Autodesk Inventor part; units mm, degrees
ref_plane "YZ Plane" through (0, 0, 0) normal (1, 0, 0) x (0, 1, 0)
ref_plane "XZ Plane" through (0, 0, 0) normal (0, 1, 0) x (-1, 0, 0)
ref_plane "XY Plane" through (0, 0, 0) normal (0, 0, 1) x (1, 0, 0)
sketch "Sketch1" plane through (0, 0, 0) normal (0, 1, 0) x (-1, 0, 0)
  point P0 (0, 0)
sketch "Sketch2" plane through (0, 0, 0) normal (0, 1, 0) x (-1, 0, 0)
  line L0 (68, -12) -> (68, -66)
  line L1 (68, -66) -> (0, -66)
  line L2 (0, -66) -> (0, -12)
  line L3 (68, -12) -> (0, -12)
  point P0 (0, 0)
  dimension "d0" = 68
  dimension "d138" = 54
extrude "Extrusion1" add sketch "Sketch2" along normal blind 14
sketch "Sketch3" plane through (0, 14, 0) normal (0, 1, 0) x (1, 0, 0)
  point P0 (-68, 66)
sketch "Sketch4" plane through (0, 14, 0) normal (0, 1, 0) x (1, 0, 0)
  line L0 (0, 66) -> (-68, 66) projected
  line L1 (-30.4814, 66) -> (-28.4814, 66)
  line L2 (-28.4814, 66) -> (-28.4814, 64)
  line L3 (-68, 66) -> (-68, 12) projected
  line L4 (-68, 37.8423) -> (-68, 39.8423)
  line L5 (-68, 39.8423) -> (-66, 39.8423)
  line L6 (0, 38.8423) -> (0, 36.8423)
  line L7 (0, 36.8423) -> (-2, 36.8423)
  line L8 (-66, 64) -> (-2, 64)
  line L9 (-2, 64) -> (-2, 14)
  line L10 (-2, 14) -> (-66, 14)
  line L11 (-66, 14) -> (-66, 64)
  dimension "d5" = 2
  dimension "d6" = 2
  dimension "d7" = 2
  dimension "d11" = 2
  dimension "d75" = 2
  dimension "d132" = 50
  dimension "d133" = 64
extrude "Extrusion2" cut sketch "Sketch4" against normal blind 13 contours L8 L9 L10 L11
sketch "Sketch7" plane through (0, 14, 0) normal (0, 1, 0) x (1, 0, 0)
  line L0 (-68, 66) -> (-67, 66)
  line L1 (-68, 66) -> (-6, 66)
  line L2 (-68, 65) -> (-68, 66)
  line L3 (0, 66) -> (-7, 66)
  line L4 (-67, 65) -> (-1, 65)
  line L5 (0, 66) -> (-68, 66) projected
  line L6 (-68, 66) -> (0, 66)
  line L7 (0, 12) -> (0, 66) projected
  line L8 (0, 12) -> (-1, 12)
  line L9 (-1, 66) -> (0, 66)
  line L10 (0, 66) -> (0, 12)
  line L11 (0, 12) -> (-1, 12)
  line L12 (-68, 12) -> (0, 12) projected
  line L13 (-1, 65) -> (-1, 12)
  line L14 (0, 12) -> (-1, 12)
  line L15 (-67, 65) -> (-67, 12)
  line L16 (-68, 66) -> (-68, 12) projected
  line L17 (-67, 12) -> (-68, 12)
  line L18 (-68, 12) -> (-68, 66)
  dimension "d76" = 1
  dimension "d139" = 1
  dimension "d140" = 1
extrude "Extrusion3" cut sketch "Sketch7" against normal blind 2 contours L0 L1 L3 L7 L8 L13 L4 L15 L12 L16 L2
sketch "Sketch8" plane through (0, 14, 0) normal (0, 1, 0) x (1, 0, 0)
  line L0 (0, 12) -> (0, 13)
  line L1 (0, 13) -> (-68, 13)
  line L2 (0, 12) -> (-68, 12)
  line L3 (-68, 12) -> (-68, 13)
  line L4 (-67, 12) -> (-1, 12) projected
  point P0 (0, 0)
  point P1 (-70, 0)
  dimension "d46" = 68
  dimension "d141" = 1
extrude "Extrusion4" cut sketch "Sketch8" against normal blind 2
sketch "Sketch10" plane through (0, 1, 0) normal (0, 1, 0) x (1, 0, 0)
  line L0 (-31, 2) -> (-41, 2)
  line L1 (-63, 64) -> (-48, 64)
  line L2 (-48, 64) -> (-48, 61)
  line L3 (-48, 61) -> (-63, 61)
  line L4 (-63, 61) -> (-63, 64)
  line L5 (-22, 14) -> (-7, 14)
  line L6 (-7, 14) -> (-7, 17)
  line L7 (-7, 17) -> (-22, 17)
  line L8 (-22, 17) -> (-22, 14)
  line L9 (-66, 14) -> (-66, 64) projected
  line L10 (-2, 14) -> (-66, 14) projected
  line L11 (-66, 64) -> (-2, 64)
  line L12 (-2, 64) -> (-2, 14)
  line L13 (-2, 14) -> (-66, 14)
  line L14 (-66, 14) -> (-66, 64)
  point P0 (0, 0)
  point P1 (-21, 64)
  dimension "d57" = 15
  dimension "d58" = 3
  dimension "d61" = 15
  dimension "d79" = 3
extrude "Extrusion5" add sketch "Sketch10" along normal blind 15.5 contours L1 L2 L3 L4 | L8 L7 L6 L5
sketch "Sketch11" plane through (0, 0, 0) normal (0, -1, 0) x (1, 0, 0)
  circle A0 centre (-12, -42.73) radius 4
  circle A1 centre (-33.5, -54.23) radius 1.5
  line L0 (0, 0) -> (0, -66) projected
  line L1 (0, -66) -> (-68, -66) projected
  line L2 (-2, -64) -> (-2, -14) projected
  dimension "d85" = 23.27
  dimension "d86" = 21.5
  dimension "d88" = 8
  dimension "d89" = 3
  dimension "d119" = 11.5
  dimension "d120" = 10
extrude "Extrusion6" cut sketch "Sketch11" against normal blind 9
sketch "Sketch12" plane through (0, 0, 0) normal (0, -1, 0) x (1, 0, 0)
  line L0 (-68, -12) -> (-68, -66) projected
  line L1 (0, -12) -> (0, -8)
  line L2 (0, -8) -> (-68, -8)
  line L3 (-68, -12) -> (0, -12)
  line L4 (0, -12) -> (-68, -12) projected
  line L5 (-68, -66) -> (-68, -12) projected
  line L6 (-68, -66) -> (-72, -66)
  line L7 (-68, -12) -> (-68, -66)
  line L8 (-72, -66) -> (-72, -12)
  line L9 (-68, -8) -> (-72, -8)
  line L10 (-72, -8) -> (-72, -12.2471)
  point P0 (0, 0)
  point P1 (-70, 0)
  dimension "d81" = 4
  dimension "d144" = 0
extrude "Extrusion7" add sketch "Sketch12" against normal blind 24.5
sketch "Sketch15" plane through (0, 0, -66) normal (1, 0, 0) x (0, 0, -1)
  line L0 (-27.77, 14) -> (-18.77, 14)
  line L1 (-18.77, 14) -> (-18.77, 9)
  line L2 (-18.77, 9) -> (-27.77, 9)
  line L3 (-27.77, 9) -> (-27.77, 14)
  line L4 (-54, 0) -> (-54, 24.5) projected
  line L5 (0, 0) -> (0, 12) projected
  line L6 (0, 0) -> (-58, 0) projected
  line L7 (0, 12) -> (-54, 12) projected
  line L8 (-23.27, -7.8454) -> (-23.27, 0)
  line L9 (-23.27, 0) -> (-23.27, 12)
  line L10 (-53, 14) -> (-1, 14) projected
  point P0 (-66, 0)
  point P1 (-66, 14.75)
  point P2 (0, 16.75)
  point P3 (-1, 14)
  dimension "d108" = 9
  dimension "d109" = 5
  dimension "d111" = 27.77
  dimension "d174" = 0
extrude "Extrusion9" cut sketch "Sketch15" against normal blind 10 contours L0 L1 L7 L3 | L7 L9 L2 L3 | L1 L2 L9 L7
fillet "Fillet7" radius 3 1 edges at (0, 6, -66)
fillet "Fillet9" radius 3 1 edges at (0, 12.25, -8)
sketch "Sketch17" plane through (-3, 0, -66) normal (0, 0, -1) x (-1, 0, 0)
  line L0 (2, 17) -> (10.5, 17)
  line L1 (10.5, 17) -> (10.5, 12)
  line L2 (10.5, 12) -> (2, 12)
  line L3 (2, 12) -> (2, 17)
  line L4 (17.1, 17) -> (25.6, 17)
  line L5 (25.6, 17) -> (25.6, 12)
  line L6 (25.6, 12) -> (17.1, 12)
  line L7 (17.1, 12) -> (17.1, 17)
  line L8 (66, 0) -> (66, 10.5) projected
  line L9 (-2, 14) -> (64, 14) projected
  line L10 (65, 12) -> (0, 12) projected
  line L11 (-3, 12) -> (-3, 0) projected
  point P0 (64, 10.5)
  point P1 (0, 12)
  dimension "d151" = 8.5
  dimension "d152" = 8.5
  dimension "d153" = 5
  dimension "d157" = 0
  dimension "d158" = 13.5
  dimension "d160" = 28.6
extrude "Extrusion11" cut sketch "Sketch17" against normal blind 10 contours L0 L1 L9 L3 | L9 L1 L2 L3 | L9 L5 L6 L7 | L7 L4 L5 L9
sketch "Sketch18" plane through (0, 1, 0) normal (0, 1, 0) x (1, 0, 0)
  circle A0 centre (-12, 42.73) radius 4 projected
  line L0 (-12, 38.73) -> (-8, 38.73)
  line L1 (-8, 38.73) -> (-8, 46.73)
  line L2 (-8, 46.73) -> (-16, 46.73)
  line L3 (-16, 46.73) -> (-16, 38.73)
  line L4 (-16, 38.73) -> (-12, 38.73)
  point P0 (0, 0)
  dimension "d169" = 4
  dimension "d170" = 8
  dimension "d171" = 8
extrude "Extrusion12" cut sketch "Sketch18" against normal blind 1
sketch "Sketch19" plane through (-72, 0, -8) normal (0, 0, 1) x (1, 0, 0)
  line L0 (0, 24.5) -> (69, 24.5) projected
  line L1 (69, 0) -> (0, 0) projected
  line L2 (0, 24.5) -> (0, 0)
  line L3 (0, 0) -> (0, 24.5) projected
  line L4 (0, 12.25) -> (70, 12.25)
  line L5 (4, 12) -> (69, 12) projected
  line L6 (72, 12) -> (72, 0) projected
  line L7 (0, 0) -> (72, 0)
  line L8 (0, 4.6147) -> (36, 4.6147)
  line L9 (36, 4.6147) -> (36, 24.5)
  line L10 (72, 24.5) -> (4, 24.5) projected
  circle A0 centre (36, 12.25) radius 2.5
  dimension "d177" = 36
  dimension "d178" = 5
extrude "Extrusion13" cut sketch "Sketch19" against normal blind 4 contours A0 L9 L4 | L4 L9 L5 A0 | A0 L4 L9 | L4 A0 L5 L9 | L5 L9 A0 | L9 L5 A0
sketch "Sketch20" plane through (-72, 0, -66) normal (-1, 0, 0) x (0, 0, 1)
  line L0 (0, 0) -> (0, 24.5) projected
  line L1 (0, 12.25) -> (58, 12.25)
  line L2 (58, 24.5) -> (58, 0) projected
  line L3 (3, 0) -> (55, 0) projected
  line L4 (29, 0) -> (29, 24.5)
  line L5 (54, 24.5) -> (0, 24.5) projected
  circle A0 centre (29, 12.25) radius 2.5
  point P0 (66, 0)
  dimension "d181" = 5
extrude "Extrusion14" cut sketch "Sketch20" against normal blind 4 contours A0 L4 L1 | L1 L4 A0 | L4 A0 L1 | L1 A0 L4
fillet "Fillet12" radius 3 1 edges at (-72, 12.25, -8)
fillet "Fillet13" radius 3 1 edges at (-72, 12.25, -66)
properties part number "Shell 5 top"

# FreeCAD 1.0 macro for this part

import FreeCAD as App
import Part
import Sketcher


def edges_at(feature, points):
    """Names of the edges that pass closest to the given points."""
    edges = feature.Shape.Edges
    near = lambda p: min(range(len(edges)), key=lambda i: edges[i].distToShape(Part.Vertex(*p))[0])
    return sorted({f"Edge{near(p) + 1}" for p in points})


def add_polygon(sketch, points):
    """Adds a closed chain of lines whose ends are joined by coincident constraints."""
    first, n = sketch.GeometryCount, len(points)
    for a, b in zip(points, points[1:] + points[:1]):
        sketch.addGeometry(Part.LineSegment(App.Vector(*a, 0), App.Vector(*b, 0)), False)
    for i in range(n):
        sketch.addConstraint(Sketcher.Constraint("Coincident", first + i, 2, first + (i + 1) % n, 1))

doc = App.newDocument("Part")
body = doc.addObject("PartDesign::Body", "Body")

# Sketch on XZ plane
sketch1 = body.newObject("Sketcher::SketchObject", "Sketch")
sketch1.AttachmentSupport = (doc.getObject("XZ_Plane"), [""])
sketch1.MapMode = "FlatFace"
add_polygon(sketch1, [(-68, -66), (-68, -12), (0, -12), (0, -66)])  # lines 0-3
sketch1.addConstraint([
    Sketcher.Constraint("Vertical", 0),
    Sketcher.Constraint("Horizontal", 1),
    Sketcher.Constraint("Vertical", 2),
    Sketcher.Constraint("Horizontal", 3),
    Sketcher.Constraint("PointOnObject", 1, 2, -2),
    Sketcher.Constraint("DistanceX", 1, 1, 1, 2, 68.0),
    Sketcher.Constraint("DistanceY", 0, 1, 0, 2, 54.0),
    Sketcher.Constraint("DistanceY", 0, 2, -1, 1, 12.0),
])
pad1 = body.newObject("PartDesign::Pad", "Pad")
pad1.Profile = sketch1
pad1.Length = 14
pad1.Reversed = True

# Sketch on XZ plane
sketch2 = body.newObject("Sketcher::SketchObject", "Sketch001")
sketch2.AttachmentSupport = (doc.getObject("XZ_Plane"), [""])
sketch2.MapMode = "FlatFace"
sketch2.AttachmentOffset = App.Placement(App.Vector(0, 0, -14), App.Rotation())
add_polygon(sketch2, [(-2, -64), (-66, -64), (-66, -14), (-2, -14)])  # lines 0-3
sketch2.addConstraint([
    Sketcher.Constraint("Horizontal", 0),
    Sketcher.Constraint("Vertical", 1),
    Sketcher.Constraint("Horizontal", 2),
    Sketcher.Constraint("Vertical", 3),
    Sketcher.Constraint("DistanceX", 0, 2, 0, 1, 64.0),
    Sketcher.Constraint("DistanceY", 1, 1, 1, 2, 50.0),
    Sketcher.Constraint("DistanceY", 0, 2, -1, 1, 64.0),
    Sketcher.Constraint("DistanceX", 2, 2, -1, 1, 2.0),
])
pocket1 = body.newObject("PartDesign::Pocket", "Pocket")
pocket1.Profile = sketch2
pocket1.Length = 13
pocket1.Reversed = True

# Sketch on XZ plane
sketch3 = body.newObject("Sketcher::SketchObject", "Sketch002")
sketch3.AttachmentSupport = (doc.getObject("XZ_Plane"), [""])
sketch3.MapMode = "FlatFace"
sketch3.AttachmentOffset = App.Placement(App.Vector(0, 0, -14), App.Rotation())
add_polygon(sketch3, [(0, -66), (-68, -66), (-68, -12), (-67, -12), (-67, -65), (-1, -65), (-1, -12), (0, -12)])  # lines 0-7
sketch3.addConstraint([
    Sketcher.Constraint("Horizontal", 0),
    Sketcher.Constraint("Vertical", 1),
    Sketcher.Constraint("Horizontal", 2),
    Sketcher.Constraint("Vertical", 3),
    Sketcher.Constraint("Horizontal", 4),
    Sketcher.Constraint("Vertical", 5),
    Sketcher.Constraint("Horizontal", 6),
    Sketcher.Constraint("Vertical", 7),
    Sketcher.Constraint("PointOnObject", 6, 2, -2),
    Sketcher.Constraint("Horizontal", 2, 2, 5, 2),
    Sketcher.Constraint("Equal", 2, 6),
    Sketcher.Constraint("DistanceX", 2, 1, 2, 2, 1.0),
    Sketcher.Constraint("DistanceY", 0, 2, 3, 2, 1.0),
    Sketcher.Constraint("DistanceX", 0, 2, 0, 1, 68.0),
    Sketcher.Constraint("DistanceY", 1, 1, 1, 2, 54.0),
    Sketcher.Constraint("DistanceY", 0, 2, -1, 1, 66.0),
])
pocket2 = body.newObject("PartDesign::Pocket", "Pocket001")
pocket2.Profile = sketch3
pocket2.Length = 2
pocket2.Reversed = True

# Sketch on XZ plane
sketch4 = body.newObject("Sketcher::SketchObject", "Sketch003")
sketch4.AttachmentSupport = (doc.getObject("XZ_Plane"), [""])
sketch4.MapMode = "FlatFace"
sketch4.AttachmentOffset = App.Placement(App.Vector(0, 0, -14), App.Rotation())
add_polygon(sketch4, [(-68, -12), (0, -12), (0, -13), (-68, -13)])  # lines 0-3
sketch4.addConstraint([
    Sketcher.Constraint("Horizontal", 0),
    Sketcher.Constraint("Vertical", 1),
    Sketcher.Constraint("Horizontal", 2),
    Sketcher.Constraint("Vertical", 3),
    Sketcher.Constraint("PointOnObject", 0, 2, -2),
    Sketcher.Constraint("DistanceX", 0, 1, 0, 2, 68.0),
    Sketcher.Constraint("DistanceY", 1, 2, 1, 1, 1.0),
    Sketcher.Constraint("DistanceY", 0, 2, -1, 1, 12.0),
])
pocket3 = body.newObject("PartDesign::Pocket", "Pocket002")
pocket3.Profile = sketch4
pocket3.Length = 2
pocket3.Reversed = True

# Sketch on XZ plane
sketch5 = body.newObject("Sketcher::SketchObject", "Sketch004")
sketch5.AttachmentSupport = (doc.getObject("XZ_Plane"), [""])
sketch5.MapMode = "FlatFace"
sketch5.AttachmentOffset = App.Placement(App.Vector(0, 0, -1), App.Rotation())
add_polygon(sketch5, [(-48, -64), (-63, -64), (-63, -61), (-48, -61)])  # lines 0-3
add_polygon(sketch5, [(-22, -17), (-22, -14), (-7, -14), (-7, -17)])  # lines 4-7
sketch5.addConstraint([
    Sketcher.Constraint("Horizontal", 0),
    Sketcher.Constraint("Vertical", 1),
    Sketcher.Constraint("Horizontal", 2),
    Sketcher.Constraint("Vertical", 3),
    Sketcher.Constraint("Vertical", 4),
    Sketcher.Constraint("Horizontal", 5),
    Sketcher.Constraint("Vertical", 6),
    Sketcher.Constraint("Horizontal", 7),
    Sketcher.Constraint("Equal", 2, 5),
    Sketcher.Constraint("Equal", 3, 4),
    Sketcher.Constraint("DistanceX", 0, 2, 0, 1, 15.0),
    Sketcher.Constraint("DistanceY", 1, 1, 1, 2, 3.0),
    Sketcher.Constraint("DistanceX", 0, 2, -1, 1, 63.0),
    Sketcher.Constraint("DistanceY", 0, 2, -1, 1, 64.0),
    Sketcher.Constraint("DistanceX", 4, 2, -1, 1, 22.0),
    Sketcher.Constraint("DistanceY", 4, 2, -1, 1, 14.0),
])
pad2 = body.newObject("PartDesign::Pad", "Pad001")
pad2.Profile = sketch5
pad2.Length = 15.5
pad2.Reversed = True

# Sketch on XZ plane
sketch6 = body.newObject("Sketcher::SketchObject", "Sketch005")
sketch6.AttachmentSupport = (doc.getObject("XZ_Plane"), [""])
sketch6.MapMode = "FlatFace"
sketch6.addGeometry([
    Part.Circle(App.Vector(-12, -42.73, 0), App.Vector(0, 0, 1), 4),
    Part.Circle(App.Vector(-33.5, -54.23, 0), App.Vector(0, 0, 1), 1.5),
], False)
sketch6.addConstraint([
    Sketcher.Constraint("Diameter", 0, 8.0),
    Sketcher.Constraint("Diameter", 1, 3.0),
    Sketcher.Constraint("DistanceX", 1, 3, 0, 3, 21.5),
    Sketcher.Constraint("DistanceY", 1, 3, 0, 3, 11.5),
    Sketcher.Constraint("DistanceX", 0, 3, -1, 1, 12.0),
    Sketcher.Constraint("DistanceY", 0, 3, -1, 1, 42.73),
])
pocket4 = body.newObject("PartDesign::Pocket", "Pocket003")
pocket4.Profile = sketch6
pocket4.Length = 9

# Sketch on XZ plane
sketch7 = body.newObject("Sketcher::SketchObject", "Sketch006")
sketch7.AttachmentSupport = (doc.getObject("XZ_Plane"), [""])
sketch7.MapMode = "FlatFace"
add_polygon(sketch7, [(-68, -66), (-68, -12), (0, -12), (0, -8), (-72, -8), (-72, -66)])  # lines 0-5
sketch7.addConstraint([
    Sketcher.Constraint("Vertical", 0),
    Sketcher.Constraint("Horizontal", 1),
    Sketcher.Constraint("Vertical", 2),
    Sketcher.Constraint("Horizontal", 3),
    Sketcher.Constraint("Vertical", 4),
    Sketcher.Constraint("Horizontal", 5),
    Sketcher.Constraint("PointOnObject", 1, 2, -2),
    Sketcher.Constraint("Equal", 5, 2),
    Sketcher.Constraint("DistanceX", 5, 1, 5, 2, 4.0),
    Sketcher.Constraint("DistanceX", 1, 1, 1, 2, 68.0),
    Sketcher.Constraint("DistanceY", 0, 1, 0, 2, 54.0),
    Sketcher.Constraint("DistanceY", 0, 2, -1, 1, 12.0),
])
pad3 = body.newObject("PartDesign::Pad", "Pad002")
pad3.Profile = sketch7
pad3.Length = 24.5
pad3.Reversed = True

# Sketch on YZ plane
sketch8 = body.newObject("Sketcher::SketchObject", "Sketch007")
sketch8.AttachmentSupport = (doc.getObject("YZ_Plane"), [""])
sketch8.MapMode = "FlatFace"
add_polygon(sketch8, [(14, -47.23), (14, -38.23), (9, -38.23), (9, -47.23)])  # lines 0-3
sketch8.addConstraint([
    Sketcher.Constraint("Vertical", 0),
    Sketcher.Constraint("Horizontal", 1),
    Sketcher.Constraint("Vertical", 2),
    Sketcher.Constraint("Horizontal", 3),
    Sketcher.Constraint("DistanceX", 1, 2, 1, 1, 5.0),
    Sketcher.Constraint("DistanceY", 0, 1, 0, 2, 9.0),
    Sketcher.Constraint("DistanceX", -1, 1, 1, 2, 9.0),
    Sketcher.Constraint("DistanceY", 0, 2, -1, 1, 38.23),
])
pocket5 = body.newObject("PartDesign::Pocket", "Pocket004")
pocket5.Profile = sketch8
pocket5.Length = 10
doc.recompute()

fillet = body.newObject("PartDesign::Fillet", "Fillet")
fillet.Base = (pocket5, edges_at(pocket5, [(0, 6, -66)]))
fillet.Radius = 3
doc.recompute()

fillet2 = body.newObject("PartDesign::Fillet", "Fillet001")
fillet2.Base = (fillet, edges_at(fillet, [(0, 12.25, -8)]))
fillet2.Radius = 3

# Sketch on XY plane
sketch9 = body.newObject("Sketcher::SketchObject", "Sketch008")
sketch9.AttachmentSupport = (doc.getObject("XY_Plane"), [""])
sketch9.MapMode = "FlatFace"
sketch9.AttachmentOffset = App.Placement(App.Vector(0, 0, -66), App.Rotation())
add_polygon(sketch9, [(-13.5, 17), (-5, 17), (-5, 12), (-13.5, 12)])  # lines 0-3
add_polygon(sketch9, [(-28.6, 12), (-28.6, 17), (-20.1, 17), (-20.1, 12)])  # lines 4-7
sketch9.addConstraint([
    Sketcher.Constraint("Horizontal", 0),
    Sketcher.Constraint("Vertical", 1),
    Sketcher.Constraint("Horizontal", 2),
    Sketcher.Constraint("Vertical", 3),
    Sketcher.Constraint("Vertical", 4),
    Sketcher.Constraint("Horizontal", 5),
    Sketcher.Constraint("Vertical", 6),
    Sketcher.Constraint("Horizontal", 7),
    Sketcher.Constraint("Horizontal", 3, 2, 4, 2),
    Sketcher.Constraint("Horizontal", 2, 2, 6, 2),
    Sketcher.Constraint("Equal", 2, 5),
    Sketcher.Constraint("DistanceY", 1, 2, 1, 1, 5.0),
    Sketcher.Constraint("DistanceX", 0, 1, 0, 2, 8.5),
    Sketcher.Constraint("DistanceX", 0, 2, -1, 1, 5.0),
    Sketcher.Constraint("DistanceX", 4, 2, -1, 1, 28.6),
    Sketcher.Constraint("DistanceY", -1, 1, 0, 2, 17.0),
])
pocket6 = body.newObject("PartDesign::Pocket", "Pocket005")
pocket6.Profile = sketch9
pocket6.Length = 10
pocket6.Reversed = True

# Sketch on XZ plane
sketch10 = body.newObject("Sketcher::SketchObject", "Sketch009")
sketch10.AttachmentSupport = (doc.getObject("XZ_Plane"), [""])
sketch10.MapMode = "FlatFace"
sketch10.AttachmentOffset = App.Placement(App.Vector(0, 0, -1), App.Rotation())
add_polygon(sketch10, [(-16, -38.73), (-8, -38.73), (-8, -46.73), (-16, -46.73)])  # lines 0-3
sketch10.addConstraint([
    Sketcher.Constraint("Horizontal", 0),
    Sketcher.Constraint("Vertical", 1),
    Sketcher.Constraint("Horizontal", 2),
    Sketcher.Constraint("Vertical", 3),
    Sketcher.Constraint("Equal", 2, 1),
    Sketcher.Constraint("DistanceX", 0, 1, 0, 2, 8.0),
    Sketcher.Constraint("DistanceX", 0, 2, -1, 1, 8.0),
    Sketcher.Constraint("DistanceY", 0, 2, -1, 1, 38.73),
])
pocket7 = body.newObject("PartDesign::Pocket", "Pocket006")
pocket7.Profile = sketch10
pocket7.Length = 1
pocket7.Reversed = True

# Sketch on XY plane
sketch11 = body.newObject("Sketcher::SketchObject", "Sketch010")
sketch11.AttachmentSupport = (doc.getObject("XY_Plane"), [""])
sketch11.MapMode = "FlatFace"
sketch11.AttachmentOffset = App.Placement(App.Vector(0, 0, -8), App.Rotation())
sketch11.addGeometry(Part.Circle(App.Vector(-36, 12.25, 0), App.Vector(0, 0, 1), 2.5), False)
sketch11.addConstraint([
    Sketcher.Constraint("Diameter", 0, 5.0),
    Sketcher.Constraint("DistanceX", 0, 3, -1, 1, 36.0),
    Sketcher.Constraint("DistanceY", -1, 1, 0, 3, 12.25),
])
pocket8 = body.newObject("PartDesign::Pocket", "Pocket007")
pocket8.Profile = sketch11
pocket8.Length = 4

# Sketch on YZ plane
sketch12 = body.newObject("Sketcher::SketchObject", "Sketch011")
sketch12.AttachmentSupport = (doc.getObject("YZ_Plane"), [""])
sketch12.MapMode = "FlatFace"
sketch12.AttachmentOffset = App.Placement(App.Vector(0, 0, -72), App.Rotation())
sketch12.addGeometry(Part.Circle(App.Vector(12.25, -37, 0), App.Vector(0, 0, 1), 2.5), False)
sketch12.addConstraint([
    Sketcher.Constraint("Diameter", 0, 5.0),
    Sketcher.Constraint("DistanceY", 0, 3, -1, 1, 37.0),
    Sketcher.Constraint("DistanceX", -1, 1, 0, 3, 12.25),
])
pocket9 = body.newObject("PartDesign::Pocket", "Pocket008")
pocket9.Profile = sketch12
pocket9.Length = 4
pocket9.Reversed = True
doc.recompute()

fillet3 = body.newObject("PartDesign::Fillet", "Fillet002")
fillet3.Base = (pocket9, edges_at(pocket9, [(-72, 12.25, -8)]))
fillet3.Radius = 3
doc.recompute()

fillet4 = body.newObject("PartDesign::Fillet", "Fillet003")
fillet4.Base = (fillet3, edges_at(fillet3, [(-72, 12.25, -66)]))
fillet4.Radius = 3

doc.recompute()
